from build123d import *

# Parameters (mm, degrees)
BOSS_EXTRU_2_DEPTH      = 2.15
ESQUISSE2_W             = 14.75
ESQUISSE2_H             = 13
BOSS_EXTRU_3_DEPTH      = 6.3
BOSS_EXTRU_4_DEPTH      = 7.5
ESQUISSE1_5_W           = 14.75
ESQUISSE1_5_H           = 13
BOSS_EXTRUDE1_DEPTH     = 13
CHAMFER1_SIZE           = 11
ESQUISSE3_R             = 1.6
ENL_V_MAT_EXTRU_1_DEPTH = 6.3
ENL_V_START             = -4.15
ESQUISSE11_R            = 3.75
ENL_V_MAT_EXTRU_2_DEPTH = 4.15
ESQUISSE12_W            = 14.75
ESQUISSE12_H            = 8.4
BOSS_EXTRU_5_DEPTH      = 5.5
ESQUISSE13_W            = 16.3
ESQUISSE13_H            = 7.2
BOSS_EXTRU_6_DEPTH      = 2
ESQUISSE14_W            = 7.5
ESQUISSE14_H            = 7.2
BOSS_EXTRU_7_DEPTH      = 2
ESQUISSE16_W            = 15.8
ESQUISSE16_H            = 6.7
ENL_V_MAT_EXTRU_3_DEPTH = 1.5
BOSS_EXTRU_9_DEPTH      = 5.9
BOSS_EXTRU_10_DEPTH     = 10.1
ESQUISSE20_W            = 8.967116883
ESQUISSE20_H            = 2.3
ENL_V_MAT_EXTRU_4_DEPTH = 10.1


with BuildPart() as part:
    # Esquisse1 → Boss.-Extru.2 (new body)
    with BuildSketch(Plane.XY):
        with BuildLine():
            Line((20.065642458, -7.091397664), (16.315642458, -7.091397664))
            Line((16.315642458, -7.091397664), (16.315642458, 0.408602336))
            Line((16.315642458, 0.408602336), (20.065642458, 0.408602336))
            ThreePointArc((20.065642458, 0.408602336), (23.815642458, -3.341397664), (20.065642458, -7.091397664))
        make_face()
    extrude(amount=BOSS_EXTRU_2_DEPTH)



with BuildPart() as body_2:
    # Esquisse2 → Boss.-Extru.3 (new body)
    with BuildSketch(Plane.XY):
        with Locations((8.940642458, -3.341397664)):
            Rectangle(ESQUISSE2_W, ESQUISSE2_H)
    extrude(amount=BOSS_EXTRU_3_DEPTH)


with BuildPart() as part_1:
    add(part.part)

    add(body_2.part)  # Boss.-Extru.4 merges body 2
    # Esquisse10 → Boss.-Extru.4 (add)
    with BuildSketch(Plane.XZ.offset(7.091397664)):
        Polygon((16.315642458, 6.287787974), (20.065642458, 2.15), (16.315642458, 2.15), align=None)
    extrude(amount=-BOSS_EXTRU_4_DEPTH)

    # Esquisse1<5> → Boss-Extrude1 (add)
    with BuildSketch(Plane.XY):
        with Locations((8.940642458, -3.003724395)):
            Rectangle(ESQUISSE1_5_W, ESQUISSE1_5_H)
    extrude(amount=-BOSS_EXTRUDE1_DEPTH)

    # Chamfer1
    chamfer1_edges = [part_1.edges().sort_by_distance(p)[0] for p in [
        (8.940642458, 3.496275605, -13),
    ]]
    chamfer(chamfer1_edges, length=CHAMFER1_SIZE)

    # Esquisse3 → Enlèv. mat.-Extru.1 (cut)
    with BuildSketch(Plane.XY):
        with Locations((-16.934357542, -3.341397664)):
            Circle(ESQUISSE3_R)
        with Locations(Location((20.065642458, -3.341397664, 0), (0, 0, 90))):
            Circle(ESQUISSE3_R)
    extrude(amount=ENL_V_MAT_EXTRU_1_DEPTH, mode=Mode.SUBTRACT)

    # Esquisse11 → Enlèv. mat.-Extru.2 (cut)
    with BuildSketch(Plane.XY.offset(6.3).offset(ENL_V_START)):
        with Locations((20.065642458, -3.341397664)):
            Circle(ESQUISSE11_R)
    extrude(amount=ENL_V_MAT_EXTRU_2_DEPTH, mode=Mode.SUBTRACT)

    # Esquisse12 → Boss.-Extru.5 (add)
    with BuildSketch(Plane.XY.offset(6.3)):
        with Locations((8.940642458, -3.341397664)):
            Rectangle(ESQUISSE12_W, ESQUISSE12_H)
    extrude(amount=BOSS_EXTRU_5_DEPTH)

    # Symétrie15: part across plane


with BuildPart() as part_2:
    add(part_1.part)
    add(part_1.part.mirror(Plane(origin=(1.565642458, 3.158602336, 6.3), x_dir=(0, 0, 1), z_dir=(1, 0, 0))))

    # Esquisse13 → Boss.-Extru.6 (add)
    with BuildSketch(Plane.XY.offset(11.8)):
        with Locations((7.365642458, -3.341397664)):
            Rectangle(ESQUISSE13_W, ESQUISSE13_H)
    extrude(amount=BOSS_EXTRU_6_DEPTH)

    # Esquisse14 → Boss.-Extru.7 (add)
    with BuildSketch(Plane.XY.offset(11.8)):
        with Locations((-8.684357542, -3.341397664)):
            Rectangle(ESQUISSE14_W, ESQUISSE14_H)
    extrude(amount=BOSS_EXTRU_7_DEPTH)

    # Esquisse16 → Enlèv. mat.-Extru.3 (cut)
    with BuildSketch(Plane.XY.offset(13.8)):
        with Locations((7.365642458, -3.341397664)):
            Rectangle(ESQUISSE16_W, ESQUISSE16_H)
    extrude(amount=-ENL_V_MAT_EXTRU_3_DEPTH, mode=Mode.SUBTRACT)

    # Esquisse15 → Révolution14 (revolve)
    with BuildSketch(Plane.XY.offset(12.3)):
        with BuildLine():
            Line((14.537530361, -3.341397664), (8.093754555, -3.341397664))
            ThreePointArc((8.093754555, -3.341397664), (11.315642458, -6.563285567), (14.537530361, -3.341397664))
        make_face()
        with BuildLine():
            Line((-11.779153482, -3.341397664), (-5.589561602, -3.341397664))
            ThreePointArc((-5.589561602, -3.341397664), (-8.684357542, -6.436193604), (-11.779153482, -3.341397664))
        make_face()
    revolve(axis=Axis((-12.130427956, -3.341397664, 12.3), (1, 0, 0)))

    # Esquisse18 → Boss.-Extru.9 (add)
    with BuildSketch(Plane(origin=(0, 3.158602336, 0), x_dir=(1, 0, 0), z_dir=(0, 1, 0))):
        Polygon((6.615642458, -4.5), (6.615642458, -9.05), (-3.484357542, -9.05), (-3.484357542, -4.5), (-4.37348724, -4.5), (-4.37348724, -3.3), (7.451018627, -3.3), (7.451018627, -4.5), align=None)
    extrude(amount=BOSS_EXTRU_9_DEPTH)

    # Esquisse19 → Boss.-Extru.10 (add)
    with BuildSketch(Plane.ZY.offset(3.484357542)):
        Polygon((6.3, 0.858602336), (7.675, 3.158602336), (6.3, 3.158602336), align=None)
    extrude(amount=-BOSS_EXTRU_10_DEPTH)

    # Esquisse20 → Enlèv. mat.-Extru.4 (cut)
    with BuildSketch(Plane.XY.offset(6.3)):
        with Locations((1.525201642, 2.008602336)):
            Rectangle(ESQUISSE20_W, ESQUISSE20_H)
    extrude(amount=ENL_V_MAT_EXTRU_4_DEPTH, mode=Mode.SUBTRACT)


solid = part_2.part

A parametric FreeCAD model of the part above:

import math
import FreeCAD as App
import Part
import Sketcher
Q = App.Units.Quantity


def edges_at(feature, points):
    """Names of the edges that pass closest to the given points."""
    edges = feature.Shape.Edges
    near = lambda p: min(range(len(edges)), key=lambda i: edges[i].distToShape(Part.Vertex(*p))[0])
    return sorted({f"Edge{near(p) + 1}" for p in points})


def add_polygon(sketch, points):
    """Adds a closed chain of lines whose ends are joined by coincident constraints."""
    first, n = sketch.GeometryCount, len(points)
    for a, b in zip(points, points[1:] + points[:1]):
        sketch.addGeometry(Part.LineSegment(App.Vector(*a, 0), App.Vector(*b, 0)), False)
    for i in range(n):
        sketch.addConstraint(Sketcher.Constraint("Coincident", first + i, 2, first + (i + 1) % n, 1))

doc = App.newDocument("Part")
body = doc.addObject("PartDesign::Body", "Body")

sketch1 = body.newObject("Sketcher::SketchObject", "Sketch")
sketch1.AttachmentSupport = (doc.getObject("XY_Plane"), [""])
sketch1.MapMode = "FlatFace"
sketch1.addGeometry([
    Part.LineSegment(App.Vector(16.3, -7.1, 0), App.Vector(20.1, -7.1, 0)),
    Part.ArcOfCircle(Part.Circle(App.Vector(20.1, -3.3, 0), App.Vector(0, 0, 1), 3.8), math.radians(-90), math.radians(90)),
    Part.LineSegment(App.Vector(20.1, 0.4, 0), App.Vector(16.3, 0.4, 0)),
    Part.LineSegment(App.Vector(16.3, 0.4, 0), App.Vector(16.3, -7.1, 0)),
], False)
sketch1.addConstraint([
    Sketcher.Constraint("Tangent", 0, 2, 1, 1),
    Sketcher.Constraint("Tangent", 1, 2, 2, 1),
    Sketcher.Constraint("Coincident", 2, 2, 3, 1),
    Sketcher.Constraint("Coincident", 3, 2, 0, 1),
    Sketcher.Constraint("Horizontal", 0),
    Sketcher.Constraint("Horizontal", 2),
    Sketcher.Constraint("Vertical", 3),
    Sketcher.Constraint("Radius", 1, Q("3.75 mm")),
    Sketcher.Constraint("DistanceX", 0, 1, 0, 2, Q("3.75 mm")),
    Sketcher.Constraint("DistanceX", -1, 1, 1, 3, Q("20.065642 mm")),
    Sketcher.Constraint("DistanceY", 1, 3, -1, 1, Q("3.341398 mm")),
])
pad1 = body.newObject("PartDesign::Pad", "Pad")
pad1.Profile = sketch1
pad1.Length = 2.15
body2 = doc.addObject("PartDesign::Body", "Body001")

sketch2 = body2.newObject("Sketcher::SketchObject", "Sketch001")
sketch2.AttachmentSupport = (doc.getObject("XY_Plane001"), [""])
sketch2.MapMode = "FlatFace"
add_polygon(sketch2, [(2, 3), (2, -10), (16, -10), (16, 3)])
sketch2.addConstraint([
    Sketcher.Constraint("Vertical", 0),
    Sketcher.Constraint("Horizontal", 1),
    Sketcher.Constraint("Vertical", 2),
    Sketcher.Constraint("Horizontal", 3),
    Sketcher.Constraint("DistanceY", 0, 2, 0, 1, Q("13 mm")),
    Sketcher.Constraint("DistanceX", 1, 1, 1, 2, Q("14.75 mm")),
    Sketcher.Constraint("DistanceX", -1, 1, 0, 2, Q("1.565642 mm")),
    Sketcher.Constraint("DistanceY", 0, 2, -1, 1, Q("9.841398 mm")),
])
pad2 = body2.newObject("PartDesign::Pad", "Pad001")
pad2.Profile = sketch2
pad2.Length = 6.3
doc.recompute()

boolean = body.newObject("PartDesign::Boolean", "Boolean")
boolean.Type = "Fuse"
boolean.addObjects([body2])

sketch3 = body.newObject("Sketcher::SketchObject", "Sketch002")
sketch3.AttachmentSupport = (doc.getObject("XZ_Plane"), [""])
sketch3.MapMode = "FlatFace"
sketch3.AttachmentOffset = App.Placement(App.Vector(0, 0, 7.091398), App.Rotation())
add_polygon(sketch3, [(20.1, 2.1), (16.3, 6.3), (16.3, 2.1)])
sketch3.addConstraint([
    Sketcher.Constraint("Vertical", 1),
    Sketcher.Constraint("Horizontal", 2),
    Sketcher.Constraint("DistanceX", 2, 1, 2, 2, Q("3.75 mm")),
    Sketcher.Constraint("DistanceY", -1, 1, 1, 2, Q("2.15 mm")),
    Sketcher.Constraint("DistanceY", 1, 2, 1, 1, Q("4.137788 mm")),
    Sketcher.Constraint("DistanceX", -1, 1, 0, 2, Q("16.315642 mm")),
])
pad3 = body.newObject("PartDesign::Pad", "Pad002")
pad3.Profile = sketch3
pad3.Length = 7.5
pad3.Reversed = True

sketch4 = body.newObject("Sketcher::SketchObject", "Sketch003")
sketch4.AttachmentSupport = (doc.getObject("XY_Plane"), [""])
sketch4.MapMode = "FlatFace"
add_polygon(sketch4, [(2, 3), (2, -10), (16, -10), (16, 3)])
sketch4.addConstraint([
    Sketcher.Constraint("Vertical", 0),
    Sketcher.Constraint("Horizontal", 1),
    Sketcher.Constraint("Vertical", 2),
    Sketcher.Constraint("Horizontal", 3),
    Sketcher.Constraint("DistanceY", 0, 2, 0, 1, Q("13 mm")),
    Sketcher.Constraint("DistanceX", 1, 1, 1, 2, Q("14.75 mm")),
    Sketcher.Constraint("DistanceX", -1, 1, 0, 2, Q("1.565642 mm")),
    Sketcher.Constraint("DistanceY", 0, 2, -1, 1, Q("9.503724 mm")),
])
pad4 = body.newObject("PartDesign::Pad", "Pad003")
pad4.Profile = sketch4
pad4.Length = 13
pad4.Reversed = True
doc.recompute()

chamfer = body.newObject("PartDesign::Chamfer", "Chamfer")
chamfer.Base = (pad4, edges_at(pad4, [(8.941, 3.496, -13)]))
chamfer.Size = 11

sketch5 = body.newObject("Sketcher::SketchObject", "Sketch004")
sketch5.AttachmentSupport = (doc.getObject("XY_Plane"), [""])
sketch5.MapMode = "FlatFace"
sketch5.addGeometry([
    Part.Circle(App.Vector(-16.9, -3.3, 0), App.Vector(0, 0, 1), 1.6),
    Part.Circle(App.Vector(20.1, -3.3, 0), App.Vector(0, 0, 1), 1.6),
], False)
sketch5.addConstraint([
    Sketcher.Constraint("Equal", 0, 1),
    Sketcher.Constraint("Horizontal", 0, 3, 1, 3),
    Sketcher.Constraint("Diameter", 0, Q("3.2 mm")),
    Sketcher.Constraint("DistanceX", 0, 3, 1, 3, Q("37 mm")),
    Sketcher.Constraint("DistanceX", 0, 3, -1, 1, Q("16.934358 mm")),
    Sketcher.Constraint("DistanceY", 0, 3, -1, 1, Q("3.341398 mm")),
])
pocket1 = body.newObject("PartDesign::Pocket", "Pocket")
pocket1.Profile = sketch5
pocket1.Length = 6.3
pocket1.Reversed = True

sketch6 = body.newObject("Sketcher::SketchObject", "Sketch005")
sketch6.AttachmentSupport = (doc.getObject("XY_Plane"), [""])
sketch6.MapMode = "FlatFace"
sketch6.AttachmentOffset = App.Placement(App.Vector(0, 0, 2.15), App.Rotation())
sketch6.addGeometry(Part.Circle(App.Vector(20.1, -3.3, 0), App.Vector(0, 0, 1), 3.8), False)
sketch6.addConstraint([
    Sketcher.Constraint("Diameter", 0, Q("7.5 mm")),
    Sketcher.Constraint("DistanceX", -1, 1, 0, 3, Q("20.065642 mm")),
    Sketcher.Constraint("DistanceY", 0, 3, -1, 1, Q("3.341398 mm")),
])
pocket2 = body.newObject("PartDesign::Pocket", "Pocket001")
pocket2.Profile = sketch6
pocket2.Length = 4.15
pocket2.Reversed = True

sketch7 = body.newObject("Sketcher::SketchObject", "Sketch006")
sketch7.AttachmentSupport = (doc.getObject("XY_Plane"), [""])
sketch7.MapMode = "FlatFace"
sketch7.AttachmentOffset = App.Placement(App.Vector(0, 0, 6.3), App.Rotation())
add_polygon(sketch7, [(2, 1), (2, -8), (16, -8), (16, 1)])
sketch7.addConstraint([
    Sketcher.Constraint("Vertical", 0),
    Sketcher.Constraint("Horizontal", 1),
    Sketcher.Constraint("Vertical", 2),
    Sketcher.Constraint("Horizontal", 3),
    Sketcher.Constraint("DistanceY", 0, 2, 0, 1, Q("8.4 mm")),
    Sketcher.Constraint("DistanceX", 1, 1, 1, 2, Q("14.75 mm")),
    Sketcher.Constraint("DistanceX", -1, 1, 0, 2, Q("1.565642 mm")),
    Sketcher.Constraint("DistanceY", 0, 2, -1, 1, Q("7.541398 mm")),
])
pad5 = body.newObject("PartDesign::Pad", "Pad004")
pad5.Profile = sketch7
pad5.Length = 5.5
body3 = doc.addObject("PartDesign::Body", "Body002")
doc.recompute()

body3.BaseFeature = body
doc.recompute()

mirroring = doc.addObject("Part::Mirroring", "Mirroring")
mirroring.Source = body
mirroring.Base = App.Vector(1.565642, 3.158602, 6.3)
mirroring.Normal = App.Vector(1, 0, 0)
body4 = doc.addObject("PartDesign::Body", "Body003")
body4.BaseFeature = mirroring
boolean2 = body3.newObject("PartDesign::Boolean", "Boolean001")
boolean2.Type = "Fuse"
boolean2.addObjects([body4])
doc.recompute()

sketch8 = body3.newObject("Sketcher::SketchObject", "Sketch007")
sketch8.AttachmentSupport = (doc.getObject("XY_Plane002"), [""])
sketch8.MapMode = "FlatFace"
sketch8.AttachmentOffset = App.Placement(App.Vector(0, 0, 11.8), App.Rotation())
add_polygon(sketch8, [(-1, 0), (-1, -7), (16, -7), (16, 0)])
sketch8.addConstraint([
    Sketcher.Constraint("Vertical", 0),
    Sketcher.Constraint("Horizontal", 1),
    Sketcher.Constraint("Vertical", 2),
    Sketcher.Constraint("Horizontal", 3),
    Sketcher.Constraint("DistanceX", 1, 1, 1, 2, Q("16.3 mm")),
    Sketcher.Constraint("DistanceY", 0, 2, 0, 1, Q("7.2 mm")),
    Sketcher.Constraint("DistanceX", 0, 2, -1, 1, Q("0.784358 mm")),
    Sketcher.Constraint("DistanceY", 0, 2, -1, 1, Q("6.941398 mm")),
])
pad6 = body3.newObject("PartDesign::Pad", "Pad005")
pad6.Profile = sketch8
pad6.Length = 2

sketch9 = body3.newObject("Sketcher::SketchObject", "Sketch008")
sketch9.AttachmentSupport = (doc.getObject("XY_Plane002"), [""])
sketch9.MapMode = "FlatFace"
sketch9.AttachmentOffset = App.Placement(App.Vector(0, 0, 11.8), App.Rotation())
add_polygon(sketch9, [(-12, 0), (-12, -7), (-5, -7), (-5, 0)])
sketch9.addConstraint([
    Sketcher.Constraint("Vertical", 0),
    Sketcher.Constraint("Horizontal", 1),
    Sketcher.Constraint("Vertical", 2),
    Sketcher.Constraint("Horizontal", 3),
    Sketcher.Constraint("DistanceX", 1, 1, 1, 2, Q("7.5 mm")),
    Sketcher.Constraint("DistanceY", 0, 2, 0, 1, Q("7.2 mm")),
    Sketcher.Constraint("DistanceX", 0, 2, -1, 1, Q("12.434358 mm")),
    Sketcher.Constraint("DistanceY", 0, 2, -1, 1, Q("6.941398 mm")),
])
pad7 = body3.newObject("PartDesign::Pad", "Pad006")
pad7.Profile = sketch9
pad7.Length = 2

sketch10 = body3.newObject("Sketcher::SketchObject", "Sketch009")
sketch10.AttachmentSupport = (doc.getObject("XY_Plane002"), [""])
sketch10.MapMode = "FlatFace"
sketch10.AttachmentOffset = App.Placement(App.Vector(0, 0, 13.8), App.Rotation())
add_polygon(sketch10, [(-1, 0), (-1, -7), (15, -7), (15, 0)])
sketch10.addConstraint([
    Sketcher.Constraint("Vertical", 0),
    Sketcher.Constraint("Horizontal", 1),
    Sketcher.Constraint("Vertical", 2),
    Sketcher.Constraint("Horizontal", 3),
    Sketcher.Constraint("DistanceX", 1, 1, 1, 2, Q("15.8 mm")),
    Sketcher.Constraint("DistanceY", 0, 2, 0, 1, Q("6.7 mm")),
    Sketcher.Constraint("DistanceX", 0, 2, -1, 1, Q("0.534358 mm")),
    Sketcher.Constraint("DistanceY", 0, 2, -1, 1, Q("6.691398 mm")),
])
pocket3 = body3.newObject("PartDesign::Pocket", "Pocket002")
pocket3.Profile = sketch10
pocket3.Length = 1.5

sketch11 = body3.newObject("Sketcher::SketchObject", "Sketch010")
sketch11.AttachmentSupport = (doc.getObject("XY_Plane002"), [""])
sketch11.MapMode = "FlatFace"
sketch11.AttachmentOffset = App.Placement(App.Vector(0, 0, 12.3), App.Rotation())
sketch11.addGeometry([
    Part.LineSegment(App.Vector(14.5, -3.3, 0), App.Vector(8.1, -3.3, 0)),
    Part.ArcOfCircle(Part.Circle(App.Vector(11.3, -3.3, 0), App.Vector(0, 0, 1), 3.2), math.radians(180), math.radians(360)),
    Part.LineSegment(App.Vector(-5.6, -3.3, 0), App.Vector(-11.8, -3.3, 0)),
    Part.ArcOfCircle(Part.Circle(App.Vector(-8.7, -3.3, 0), App.Vector(0, 0, 1), 3.1), math.radians(180), math.radians(360)),
], False)
sketch11.addGeometry(Part.LineSegment(App.Vector(-11.8, -3.3, 0), App.Vector(14.5, -3.3, 0)), True)
sketch11.addConstraint([
    Sketcher.Constraint("Coincident", 0, 1, 1, 2),
    Sketcher.Constraint("Coincident", 1, 1, 0, 2),
    Sketcher.Constraint("Coincident", 2, 1, 3, 2),
    Sketcher.Constraint("Coincident", 3, 1, 2, 2),
    Sketcher.Constraint("Horizontal", 0),
    Sketcher.Constraint("Horizontal", 2),
    Sketcher.Constraint("Horizontal", 4),
    Sketcher.Constraint("Coincident", 4, 1, 3, 1),
    Sketcher.Constraint("Coincident", 4, 2, 0, 1),
    Sketcher.Constraint("Horizontal", 1, 3, 3, 3),
    Sketcher.Constraint("Horizontal", 3, 3, 0, 1),
    Sketcher.Constraint("DistanceX", 3, 3, 1, 3, Q("20 mm")),
    Sketcher.Constraint("Radius", 1, Q("3.221888 mm")),
    Sketcher.Constraint("Radius", 3, Q("3.094796 mm")),
    Sketcher.Constraint("DistanceX", -1, 1, 0, 1, Q("14.53753 mm")),
    Sketcher.Constraint("DistanceY", 1, 3, -1, 1, Q("3.341398 mm")),
])
revolution = body3.newObject("PartDesign::Revolution", "Revolution")
revolution.Profile = sketch11
revolution.ReferenceAxis = (sketch11, ["Axis0"])
revolution.Angle = 360

sketch12 = body3.newObject("Sketcher::SketchObject", "Sketch011")
sketch12.AttachmentSupport = (doc.getObject("XZ_Plane002"), [""])
sketch12.MapMode = "FlatFace"
sketch12.AttachmentOffset = App.Placement(App.Vector(0, 0, -3.158602), App.Rotation())
add_polygon(sketch12, [(6.6, 9.1), (6.6, 4.5), (7.5, 4.5), (7.5, 3.3), (-4.4, 3.3), (-4.4, 4.5), (-3.5, 4.5), (-3.5, 9.1)])
sketch12.addConstraint([
    Sketcher.Constraint("Vertical", 0),
    Sketcher.Constraint("Horizontal", 1),
    Sketcher.Constraint("Vertical", 2),
    Sketcher.Constraint("Horizontal", 3),
    Sketcher.Constraint("Vertical", 4),
    Sketcher.Constraint("Horizontal", 5),
    Sketcher.Constraint("Vertical", 6),
    Sketcher.Constraint("Horizontal", 7),
    Sketcher.Constraint("Horizontal", 1, 2, 4, 2),
    Sketcher.Constraint("DistanceX", 7, 1, 7, 2, Q("10.1 mm")),
    Sketcher.Constraint("DistanceY", 2, 2, 2, 1, Q("1.2 mm")),
    Sketcher.Constraint("DistanceY", 0, 2, 0, 1, Q("4.55 mm")),
    Sketcher.Constraint("DistanceY", -1, 1, 0, 2, Q("4.5 mm")),
    Sketcher.Constraint("DistanceX", 5, 1, 5, 2, Q("0.88913 mm")),
    Sketcher.Constraint("DistanceX", 1, 1, 1, 2, Q("0.835376 mm")),
    Sketcher.Constraint("DistanceX", -1, 1, 1, 2, Q("7.451019 mm")),
])
pad8 = body3.newObject("PartDesign::Pad", "Pad007")
pad8.Profile = sketch12
pad8.Length = 5.9
pad8.Reversed = True

sketch13 = body3.newObject("Sketcher::SketchObject", "Sketch012")
sketch13.AttachmentSupport = (doc.getObject("YZ_Plane002"), [""])
sketch13.MapMode = "FlatFace"
sketch13.AttachmentOffset = App.Placement(App.Vector(0, 0, -3.484358), App.Rotation())
add_polygon(sketch13, [(0.9, 6.3), (3.2, 7.7), (3.2, 6.3)])
sketch13.addConstraint([
    Sketcher.Constraint("Vertical", 1),
    Sketcher.Constraint("Horizontal", 2),
    Sketcher.Constraint("DistanceX", 2, 2, 2, 1, Q("2.3 mm")),
    Sketcher.Constraint("DistanceY", -1, 1, 1, 2, Q("6.3 mm")),
    Sketcher.Constraint("DistanceY", 1, 2, 1, 1, Q("1.375 mm")),
    Sketcher.Constraint("DistanceX", -1, 1, 0, 2, Q("3.158602 mm")),
])
pad9 = body3.newObject("PartDesign::Pad", "Pad008")
pad9.Profile = sketch13
pad9.Length = 10.1

sketch14 = body3.newObject("Sketcher::SketchObject", "Sketch013")
sketch14.AttachmentSupport = (doc.getObject("XY_Plane002"), [""])
sketch14.MapMode = "FlatFace"
sketch14.AttachmentOffset = App.Placement(App.Vector(0, 0, 6.3), App.Rotation())
add_polygon(sketch14, [(-3, 3.2), (-3, 0.9), (6, 0.9), (6, 3.2)])
sketch14.addConstraint([
    Sketcher.Constraint("Vertical", 0),
    Sketcher.Constraint("Horizontal", 1),
    Sketcher.Constraint("Vertical", 2),
    Sketcher.Constraint("Horizontal", 3),
    Sketcher.Constraint("DistanceY", 0, 2, 0, 1, Q("2.3 mm")),
    Sketcher.Constraint("DistanceX", 1, 1, 1, 2, Q("8.967117 mm")),
    Sketcher.Constraint("DistanceX", -1, 1, 1, 2, Q("6.00876 mm")),
    Sketcher.Constraint("DistanceY", -1, 1, 0, 2, Q("0.858602 mm")),
])
pocket4 = body3.newObject("PartDesign::Pocket", "Pocket003")
pocket4.Profile = sketch14
pocket4.Length = 10.1
pocket4.Reversed = True
mirroring.Visibility = False

doc.recompute()
